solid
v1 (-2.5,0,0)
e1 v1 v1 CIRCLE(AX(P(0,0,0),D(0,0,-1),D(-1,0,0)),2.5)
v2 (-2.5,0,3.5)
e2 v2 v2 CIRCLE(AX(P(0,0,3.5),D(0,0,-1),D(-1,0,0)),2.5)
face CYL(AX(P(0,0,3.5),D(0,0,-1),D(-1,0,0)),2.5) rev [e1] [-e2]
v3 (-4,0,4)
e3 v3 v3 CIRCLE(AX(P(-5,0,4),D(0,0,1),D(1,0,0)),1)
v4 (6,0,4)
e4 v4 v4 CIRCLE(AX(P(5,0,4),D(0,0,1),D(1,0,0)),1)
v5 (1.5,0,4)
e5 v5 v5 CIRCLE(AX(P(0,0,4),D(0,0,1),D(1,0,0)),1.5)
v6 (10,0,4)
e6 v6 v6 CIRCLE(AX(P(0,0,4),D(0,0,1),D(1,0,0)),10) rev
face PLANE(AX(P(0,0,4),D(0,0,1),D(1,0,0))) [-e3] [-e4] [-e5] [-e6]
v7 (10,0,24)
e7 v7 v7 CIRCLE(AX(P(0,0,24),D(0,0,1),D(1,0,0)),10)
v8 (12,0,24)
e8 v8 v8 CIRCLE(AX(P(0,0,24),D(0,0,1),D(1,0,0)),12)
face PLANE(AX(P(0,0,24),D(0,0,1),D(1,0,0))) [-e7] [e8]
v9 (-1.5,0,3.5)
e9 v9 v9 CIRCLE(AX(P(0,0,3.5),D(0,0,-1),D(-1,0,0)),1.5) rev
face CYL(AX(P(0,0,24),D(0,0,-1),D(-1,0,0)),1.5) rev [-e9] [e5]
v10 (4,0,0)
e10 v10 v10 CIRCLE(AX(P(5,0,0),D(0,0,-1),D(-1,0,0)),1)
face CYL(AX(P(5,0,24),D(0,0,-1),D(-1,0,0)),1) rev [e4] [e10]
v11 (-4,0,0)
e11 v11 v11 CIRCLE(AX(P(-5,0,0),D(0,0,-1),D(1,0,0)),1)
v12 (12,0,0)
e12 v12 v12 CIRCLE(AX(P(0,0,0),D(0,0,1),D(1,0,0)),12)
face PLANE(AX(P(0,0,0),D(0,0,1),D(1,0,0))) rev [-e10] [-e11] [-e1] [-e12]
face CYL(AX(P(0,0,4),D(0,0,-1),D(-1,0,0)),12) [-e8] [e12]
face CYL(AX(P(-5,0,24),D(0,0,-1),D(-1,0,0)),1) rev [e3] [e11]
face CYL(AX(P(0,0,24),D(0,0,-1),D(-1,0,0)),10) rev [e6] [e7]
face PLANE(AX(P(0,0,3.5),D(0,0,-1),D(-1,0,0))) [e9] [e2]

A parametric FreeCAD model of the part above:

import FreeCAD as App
import Part
import Sketcher
from FreeCAD import Vector
Q = App.Units.Quantity

doc = App.newDocument("Part")
params = doc.addObject("Spreadsheet::Sheet", "Params")
for row, (alias, value) in enumerate([
    ("sketch1_diameter", "24 mm"),
    ("pad1_length", "4 mm"),
    ("sketch2_diameter", "24 mm"),
    ("sketch2_diameter2", "20 mm"),
    ("pad2_length", "20 mm"),
    ("sketch3_diameter", "3 mm"),
    ("sketch4_diameter", "5 mm"),
    ("pocket2_length", "3.5 mm"),
    ("sketch5_diameter", "2 mm"),
], start=1):
    params.set(f"A{row}", alias)
    params.set(f"B{row}", "=" + value)
    params.setAlias(f"B{row}", alias)

body = doc.addObject("PartDesign::Body", "Body")

# Sketch on XY plane
sketch1 = body.newObject("Sketcher::SketchObject", "Sketch")
sketch1.AttachmentSupport = (doc.getObject("XY_Plane"), [""])
sketch1.MapMode = "FlatFace"
sketch1.addGeometry(Part.Circle(Vector(0, 0, 0), Vector(0, 0, 1), 12), False)
sketch1.addConstraint([
    Sketcher.Constraint("Coincident", 0, 3, -1, 1),
    Sketcher.Constraint("Diameter", 0, Q("24 mm")),
])
sketch1.setExpression("Constraints[1]", "Params.sketch1_diameter")
pad1 = body.newObject("PartDesign::Pad", "Pad")
pad1.Profile = sketch1
pad1.setExpression("Length", "Params.pad1_length")

# Sketch on XY plane
sketch2 = body.newObject("Sketcher::SketchObject", "Sketch001")
sketch2.AttachmentSupport = (doc.getObject("XY_Plane"), [""])
sketch2.MapMode = "FlatFace"
sketch2.AttachmentOffset = App.Placement(Vector(0, 0, 4), App.Rotation())
sketch2.addGeometry([
    Part.Circle(Vector(0, 0, 0), Vector(0, 0, 1), 12),
    Part.Circle(Vector(0, 0, 0), Vector(0, 0, 1), 10),
], False)
sketch2.addConstraint([
    Sketcher.Constraint("Coincident", 0, 3, -1, 1),
    Sketcher.Constraint("Coincident", 1, 3, -1, 1),
    Sketcher.Constraint("Diameter", 0, Q("24 mm")),
    Sketcher.Constraint("Diameter", 1, Q("20 mm")),
])
sketch2.setExpression("Constraints[2]", "Params.sketch2_diameter")
sketch2.setExpression("Constraints[3]", "Params.sketch2_diameter2")
pad2 = body.newObject("PartDesign::Pad", "Pad001")
pad2.Profile = sketch2
pad2.setExpression("Length", "Params.pad2_length")

# Sketch on XY plane
sketch3 = body.newObject("Sketcher::SketchObject", "Sketch002")
sketch3.AttachmentSupport = (doc.getObject("XY_Plane"), [""])
sketch3.MapMode = "FlatFace"
sketch3.addGeometry(Part.Circle(Vector(0, 0, 0), Vector(0, 0, 1), 1.5), False)
sketch3.addConstraint([
    Sketcher.Constraint("Coincident", 0, 3, -1, 1),
    Sketcher.Constraint("Diameter", 0, Q("3 mm")),
])
sketch3.setExpression("Constraints[1]", "Params.sketch3_diameter")
pocket1 = body.newObject("PartDesign::Pocket", "Pocket")
pocket1.Profile = sketch3
pocket1.Type = "ThroughAll"
pocket1.Reversed = True

# Sketch on XY plane
sketch4 = body.newObject("Sketcher::SketchObject", "Sketch003")
sketch4.AttachmentSupport = (doc.getObject("XY_Plane"), [""])
sketch4.MapMode = "FlatFace"
sketch4.addGeometry(Part.Circle(Vector(0, 0, 0), Vector(0, 0, 1), 2.5), False)
sketch4.addConstraint([
    Sketcher.Constraint("Coincident", 0, 3, -1, 1),
    Sketcher.Constraint("Diameter", 0, Q("5 mm")),
])
sketch4.setExpression("Constraints[1]", "Params.sketch4_diameter")
pocket2 = body.newObject("PartDesign::Pocket", "Pocket001")
pocket2.Profile = sketch4
pocket2.setExpression("Length", "Params.pocket2_length")
pocket2.Reversed = True

# Sketch on XY plane
sketch5 = body.newObject("Sketcher::SketchObject", "Sketch004")
sketch5.AttachmentSupport = (doc.getObject("XY_Plane"), [""])
sketch5.MapMode = "FlatFace"
sketch5.addGeometry([
    Part.Circle(Vector(5, 0, 0), Vector(0, 0, 1), 1),
    Part.Circle(Vector(-5, 0, 0), Vector(0, 0, 1), 1),
], False)
sketch5.addConstraint([
    Sketcher.Constraint("Equal", 0, 1),
    Sketcher.Constraint("Symmetric", 0, 3, 1, 3, -1, 1),
    Sketcher.Constraint("PointOnObject", 0, 3, -1),
    Sketcher.Constraint("Diameter", 0, Q("2 mm")),
    Sketcher.Constraint("DistanceX", -1, 1, 0, 3, Q("5 mm")),
])
sketch5.setExpression("Constraints[3]", "Params.sketch5_diameter")
pocket3 = body.newObject("PartDesign::Pocket", "Pocket002")
pocket3.Profile = sketch5
pocket3.Type = "ThroughAll"
pocket3.Reversed = True

doc.recompute()
